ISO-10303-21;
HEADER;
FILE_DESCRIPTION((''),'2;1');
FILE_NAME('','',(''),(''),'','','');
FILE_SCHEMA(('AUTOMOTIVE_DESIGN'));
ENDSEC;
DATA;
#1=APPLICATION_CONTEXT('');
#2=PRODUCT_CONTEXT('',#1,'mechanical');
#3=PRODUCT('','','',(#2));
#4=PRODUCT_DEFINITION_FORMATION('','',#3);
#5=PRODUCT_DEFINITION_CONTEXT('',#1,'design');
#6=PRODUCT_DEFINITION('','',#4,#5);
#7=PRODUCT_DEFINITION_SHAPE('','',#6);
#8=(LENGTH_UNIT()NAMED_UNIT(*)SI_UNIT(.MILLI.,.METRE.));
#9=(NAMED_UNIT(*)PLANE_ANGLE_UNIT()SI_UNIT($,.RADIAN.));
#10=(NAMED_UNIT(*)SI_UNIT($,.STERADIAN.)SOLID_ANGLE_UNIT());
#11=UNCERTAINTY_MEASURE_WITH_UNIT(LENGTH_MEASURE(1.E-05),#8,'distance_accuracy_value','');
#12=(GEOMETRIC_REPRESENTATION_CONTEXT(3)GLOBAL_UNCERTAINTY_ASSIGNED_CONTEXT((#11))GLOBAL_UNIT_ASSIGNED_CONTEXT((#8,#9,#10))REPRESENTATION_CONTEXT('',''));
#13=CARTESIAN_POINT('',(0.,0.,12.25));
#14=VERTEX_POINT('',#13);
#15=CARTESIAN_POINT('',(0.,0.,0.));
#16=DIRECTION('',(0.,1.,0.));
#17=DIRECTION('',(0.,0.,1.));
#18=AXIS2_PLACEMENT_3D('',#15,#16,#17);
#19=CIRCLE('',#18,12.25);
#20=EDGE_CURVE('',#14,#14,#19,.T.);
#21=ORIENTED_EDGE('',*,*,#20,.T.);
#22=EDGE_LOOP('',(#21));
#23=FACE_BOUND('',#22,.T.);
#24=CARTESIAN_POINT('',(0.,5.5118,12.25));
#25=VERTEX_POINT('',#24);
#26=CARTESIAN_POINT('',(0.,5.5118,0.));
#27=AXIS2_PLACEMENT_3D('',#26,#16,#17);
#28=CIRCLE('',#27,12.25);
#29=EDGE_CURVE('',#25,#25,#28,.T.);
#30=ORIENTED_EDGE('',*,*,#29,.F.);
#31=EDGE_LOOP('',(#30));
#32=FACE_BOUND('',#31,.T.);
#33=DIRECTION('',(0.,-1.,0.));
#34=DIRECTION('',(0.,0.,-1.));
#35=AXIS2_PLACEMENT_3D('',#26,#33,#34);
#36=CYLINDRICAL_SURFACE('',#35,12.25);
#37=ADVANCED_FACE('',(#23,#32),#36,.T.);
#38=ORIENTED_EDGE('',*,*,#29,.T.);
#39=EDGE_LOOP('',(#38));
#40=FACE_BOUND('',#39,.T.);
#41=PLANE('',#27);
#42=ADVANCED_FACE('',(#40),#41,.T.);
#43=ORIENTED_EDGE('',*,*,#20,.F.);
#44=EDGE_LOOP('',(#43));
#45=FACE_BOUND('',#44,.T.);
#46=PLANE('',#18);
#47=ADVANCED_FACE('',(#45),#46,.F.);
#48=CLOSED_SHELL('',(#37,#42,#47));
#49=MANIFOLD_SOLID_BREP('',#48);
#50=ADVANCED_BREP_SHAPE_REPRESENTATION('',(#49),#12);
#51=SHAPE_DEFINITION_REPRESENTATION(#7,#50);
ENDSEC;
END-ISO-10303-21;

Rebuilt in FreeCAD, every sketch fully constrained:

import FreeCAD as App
import Part
import Sketcher

V = App.Vector
Q = App.Units.Quantity

doc = App.newDocument("Part")
body = doc.addObject("PartDesign::Body", "Body")

# Sketch on XZ plane
sketch1 = body.newObject("Sketcher::SketchObject", "Sketch")
sketch1.AttachmentSupport = (doc.getObject("XZ_Plane"), [""])
sketch1.MapMode = "FlatFace"
sketch1.addGeometry(Part.Circle(V(0, 0, 0), V(0, 0, 1), 12), False)
sketch1.addConstraint([
    Sketcher.Constraint("Coincident", 0, 3, -1, 1),
    Sketcher.Constraint("Diameter", 0, Q("24.5 mm")),
])
pad1 = body.newObject("PartDesign::Pad", "Pad")
pad1.Profile = sketch1
pad1.Length = 5.5118
pad1.Reversed = True

doc.recompute()
